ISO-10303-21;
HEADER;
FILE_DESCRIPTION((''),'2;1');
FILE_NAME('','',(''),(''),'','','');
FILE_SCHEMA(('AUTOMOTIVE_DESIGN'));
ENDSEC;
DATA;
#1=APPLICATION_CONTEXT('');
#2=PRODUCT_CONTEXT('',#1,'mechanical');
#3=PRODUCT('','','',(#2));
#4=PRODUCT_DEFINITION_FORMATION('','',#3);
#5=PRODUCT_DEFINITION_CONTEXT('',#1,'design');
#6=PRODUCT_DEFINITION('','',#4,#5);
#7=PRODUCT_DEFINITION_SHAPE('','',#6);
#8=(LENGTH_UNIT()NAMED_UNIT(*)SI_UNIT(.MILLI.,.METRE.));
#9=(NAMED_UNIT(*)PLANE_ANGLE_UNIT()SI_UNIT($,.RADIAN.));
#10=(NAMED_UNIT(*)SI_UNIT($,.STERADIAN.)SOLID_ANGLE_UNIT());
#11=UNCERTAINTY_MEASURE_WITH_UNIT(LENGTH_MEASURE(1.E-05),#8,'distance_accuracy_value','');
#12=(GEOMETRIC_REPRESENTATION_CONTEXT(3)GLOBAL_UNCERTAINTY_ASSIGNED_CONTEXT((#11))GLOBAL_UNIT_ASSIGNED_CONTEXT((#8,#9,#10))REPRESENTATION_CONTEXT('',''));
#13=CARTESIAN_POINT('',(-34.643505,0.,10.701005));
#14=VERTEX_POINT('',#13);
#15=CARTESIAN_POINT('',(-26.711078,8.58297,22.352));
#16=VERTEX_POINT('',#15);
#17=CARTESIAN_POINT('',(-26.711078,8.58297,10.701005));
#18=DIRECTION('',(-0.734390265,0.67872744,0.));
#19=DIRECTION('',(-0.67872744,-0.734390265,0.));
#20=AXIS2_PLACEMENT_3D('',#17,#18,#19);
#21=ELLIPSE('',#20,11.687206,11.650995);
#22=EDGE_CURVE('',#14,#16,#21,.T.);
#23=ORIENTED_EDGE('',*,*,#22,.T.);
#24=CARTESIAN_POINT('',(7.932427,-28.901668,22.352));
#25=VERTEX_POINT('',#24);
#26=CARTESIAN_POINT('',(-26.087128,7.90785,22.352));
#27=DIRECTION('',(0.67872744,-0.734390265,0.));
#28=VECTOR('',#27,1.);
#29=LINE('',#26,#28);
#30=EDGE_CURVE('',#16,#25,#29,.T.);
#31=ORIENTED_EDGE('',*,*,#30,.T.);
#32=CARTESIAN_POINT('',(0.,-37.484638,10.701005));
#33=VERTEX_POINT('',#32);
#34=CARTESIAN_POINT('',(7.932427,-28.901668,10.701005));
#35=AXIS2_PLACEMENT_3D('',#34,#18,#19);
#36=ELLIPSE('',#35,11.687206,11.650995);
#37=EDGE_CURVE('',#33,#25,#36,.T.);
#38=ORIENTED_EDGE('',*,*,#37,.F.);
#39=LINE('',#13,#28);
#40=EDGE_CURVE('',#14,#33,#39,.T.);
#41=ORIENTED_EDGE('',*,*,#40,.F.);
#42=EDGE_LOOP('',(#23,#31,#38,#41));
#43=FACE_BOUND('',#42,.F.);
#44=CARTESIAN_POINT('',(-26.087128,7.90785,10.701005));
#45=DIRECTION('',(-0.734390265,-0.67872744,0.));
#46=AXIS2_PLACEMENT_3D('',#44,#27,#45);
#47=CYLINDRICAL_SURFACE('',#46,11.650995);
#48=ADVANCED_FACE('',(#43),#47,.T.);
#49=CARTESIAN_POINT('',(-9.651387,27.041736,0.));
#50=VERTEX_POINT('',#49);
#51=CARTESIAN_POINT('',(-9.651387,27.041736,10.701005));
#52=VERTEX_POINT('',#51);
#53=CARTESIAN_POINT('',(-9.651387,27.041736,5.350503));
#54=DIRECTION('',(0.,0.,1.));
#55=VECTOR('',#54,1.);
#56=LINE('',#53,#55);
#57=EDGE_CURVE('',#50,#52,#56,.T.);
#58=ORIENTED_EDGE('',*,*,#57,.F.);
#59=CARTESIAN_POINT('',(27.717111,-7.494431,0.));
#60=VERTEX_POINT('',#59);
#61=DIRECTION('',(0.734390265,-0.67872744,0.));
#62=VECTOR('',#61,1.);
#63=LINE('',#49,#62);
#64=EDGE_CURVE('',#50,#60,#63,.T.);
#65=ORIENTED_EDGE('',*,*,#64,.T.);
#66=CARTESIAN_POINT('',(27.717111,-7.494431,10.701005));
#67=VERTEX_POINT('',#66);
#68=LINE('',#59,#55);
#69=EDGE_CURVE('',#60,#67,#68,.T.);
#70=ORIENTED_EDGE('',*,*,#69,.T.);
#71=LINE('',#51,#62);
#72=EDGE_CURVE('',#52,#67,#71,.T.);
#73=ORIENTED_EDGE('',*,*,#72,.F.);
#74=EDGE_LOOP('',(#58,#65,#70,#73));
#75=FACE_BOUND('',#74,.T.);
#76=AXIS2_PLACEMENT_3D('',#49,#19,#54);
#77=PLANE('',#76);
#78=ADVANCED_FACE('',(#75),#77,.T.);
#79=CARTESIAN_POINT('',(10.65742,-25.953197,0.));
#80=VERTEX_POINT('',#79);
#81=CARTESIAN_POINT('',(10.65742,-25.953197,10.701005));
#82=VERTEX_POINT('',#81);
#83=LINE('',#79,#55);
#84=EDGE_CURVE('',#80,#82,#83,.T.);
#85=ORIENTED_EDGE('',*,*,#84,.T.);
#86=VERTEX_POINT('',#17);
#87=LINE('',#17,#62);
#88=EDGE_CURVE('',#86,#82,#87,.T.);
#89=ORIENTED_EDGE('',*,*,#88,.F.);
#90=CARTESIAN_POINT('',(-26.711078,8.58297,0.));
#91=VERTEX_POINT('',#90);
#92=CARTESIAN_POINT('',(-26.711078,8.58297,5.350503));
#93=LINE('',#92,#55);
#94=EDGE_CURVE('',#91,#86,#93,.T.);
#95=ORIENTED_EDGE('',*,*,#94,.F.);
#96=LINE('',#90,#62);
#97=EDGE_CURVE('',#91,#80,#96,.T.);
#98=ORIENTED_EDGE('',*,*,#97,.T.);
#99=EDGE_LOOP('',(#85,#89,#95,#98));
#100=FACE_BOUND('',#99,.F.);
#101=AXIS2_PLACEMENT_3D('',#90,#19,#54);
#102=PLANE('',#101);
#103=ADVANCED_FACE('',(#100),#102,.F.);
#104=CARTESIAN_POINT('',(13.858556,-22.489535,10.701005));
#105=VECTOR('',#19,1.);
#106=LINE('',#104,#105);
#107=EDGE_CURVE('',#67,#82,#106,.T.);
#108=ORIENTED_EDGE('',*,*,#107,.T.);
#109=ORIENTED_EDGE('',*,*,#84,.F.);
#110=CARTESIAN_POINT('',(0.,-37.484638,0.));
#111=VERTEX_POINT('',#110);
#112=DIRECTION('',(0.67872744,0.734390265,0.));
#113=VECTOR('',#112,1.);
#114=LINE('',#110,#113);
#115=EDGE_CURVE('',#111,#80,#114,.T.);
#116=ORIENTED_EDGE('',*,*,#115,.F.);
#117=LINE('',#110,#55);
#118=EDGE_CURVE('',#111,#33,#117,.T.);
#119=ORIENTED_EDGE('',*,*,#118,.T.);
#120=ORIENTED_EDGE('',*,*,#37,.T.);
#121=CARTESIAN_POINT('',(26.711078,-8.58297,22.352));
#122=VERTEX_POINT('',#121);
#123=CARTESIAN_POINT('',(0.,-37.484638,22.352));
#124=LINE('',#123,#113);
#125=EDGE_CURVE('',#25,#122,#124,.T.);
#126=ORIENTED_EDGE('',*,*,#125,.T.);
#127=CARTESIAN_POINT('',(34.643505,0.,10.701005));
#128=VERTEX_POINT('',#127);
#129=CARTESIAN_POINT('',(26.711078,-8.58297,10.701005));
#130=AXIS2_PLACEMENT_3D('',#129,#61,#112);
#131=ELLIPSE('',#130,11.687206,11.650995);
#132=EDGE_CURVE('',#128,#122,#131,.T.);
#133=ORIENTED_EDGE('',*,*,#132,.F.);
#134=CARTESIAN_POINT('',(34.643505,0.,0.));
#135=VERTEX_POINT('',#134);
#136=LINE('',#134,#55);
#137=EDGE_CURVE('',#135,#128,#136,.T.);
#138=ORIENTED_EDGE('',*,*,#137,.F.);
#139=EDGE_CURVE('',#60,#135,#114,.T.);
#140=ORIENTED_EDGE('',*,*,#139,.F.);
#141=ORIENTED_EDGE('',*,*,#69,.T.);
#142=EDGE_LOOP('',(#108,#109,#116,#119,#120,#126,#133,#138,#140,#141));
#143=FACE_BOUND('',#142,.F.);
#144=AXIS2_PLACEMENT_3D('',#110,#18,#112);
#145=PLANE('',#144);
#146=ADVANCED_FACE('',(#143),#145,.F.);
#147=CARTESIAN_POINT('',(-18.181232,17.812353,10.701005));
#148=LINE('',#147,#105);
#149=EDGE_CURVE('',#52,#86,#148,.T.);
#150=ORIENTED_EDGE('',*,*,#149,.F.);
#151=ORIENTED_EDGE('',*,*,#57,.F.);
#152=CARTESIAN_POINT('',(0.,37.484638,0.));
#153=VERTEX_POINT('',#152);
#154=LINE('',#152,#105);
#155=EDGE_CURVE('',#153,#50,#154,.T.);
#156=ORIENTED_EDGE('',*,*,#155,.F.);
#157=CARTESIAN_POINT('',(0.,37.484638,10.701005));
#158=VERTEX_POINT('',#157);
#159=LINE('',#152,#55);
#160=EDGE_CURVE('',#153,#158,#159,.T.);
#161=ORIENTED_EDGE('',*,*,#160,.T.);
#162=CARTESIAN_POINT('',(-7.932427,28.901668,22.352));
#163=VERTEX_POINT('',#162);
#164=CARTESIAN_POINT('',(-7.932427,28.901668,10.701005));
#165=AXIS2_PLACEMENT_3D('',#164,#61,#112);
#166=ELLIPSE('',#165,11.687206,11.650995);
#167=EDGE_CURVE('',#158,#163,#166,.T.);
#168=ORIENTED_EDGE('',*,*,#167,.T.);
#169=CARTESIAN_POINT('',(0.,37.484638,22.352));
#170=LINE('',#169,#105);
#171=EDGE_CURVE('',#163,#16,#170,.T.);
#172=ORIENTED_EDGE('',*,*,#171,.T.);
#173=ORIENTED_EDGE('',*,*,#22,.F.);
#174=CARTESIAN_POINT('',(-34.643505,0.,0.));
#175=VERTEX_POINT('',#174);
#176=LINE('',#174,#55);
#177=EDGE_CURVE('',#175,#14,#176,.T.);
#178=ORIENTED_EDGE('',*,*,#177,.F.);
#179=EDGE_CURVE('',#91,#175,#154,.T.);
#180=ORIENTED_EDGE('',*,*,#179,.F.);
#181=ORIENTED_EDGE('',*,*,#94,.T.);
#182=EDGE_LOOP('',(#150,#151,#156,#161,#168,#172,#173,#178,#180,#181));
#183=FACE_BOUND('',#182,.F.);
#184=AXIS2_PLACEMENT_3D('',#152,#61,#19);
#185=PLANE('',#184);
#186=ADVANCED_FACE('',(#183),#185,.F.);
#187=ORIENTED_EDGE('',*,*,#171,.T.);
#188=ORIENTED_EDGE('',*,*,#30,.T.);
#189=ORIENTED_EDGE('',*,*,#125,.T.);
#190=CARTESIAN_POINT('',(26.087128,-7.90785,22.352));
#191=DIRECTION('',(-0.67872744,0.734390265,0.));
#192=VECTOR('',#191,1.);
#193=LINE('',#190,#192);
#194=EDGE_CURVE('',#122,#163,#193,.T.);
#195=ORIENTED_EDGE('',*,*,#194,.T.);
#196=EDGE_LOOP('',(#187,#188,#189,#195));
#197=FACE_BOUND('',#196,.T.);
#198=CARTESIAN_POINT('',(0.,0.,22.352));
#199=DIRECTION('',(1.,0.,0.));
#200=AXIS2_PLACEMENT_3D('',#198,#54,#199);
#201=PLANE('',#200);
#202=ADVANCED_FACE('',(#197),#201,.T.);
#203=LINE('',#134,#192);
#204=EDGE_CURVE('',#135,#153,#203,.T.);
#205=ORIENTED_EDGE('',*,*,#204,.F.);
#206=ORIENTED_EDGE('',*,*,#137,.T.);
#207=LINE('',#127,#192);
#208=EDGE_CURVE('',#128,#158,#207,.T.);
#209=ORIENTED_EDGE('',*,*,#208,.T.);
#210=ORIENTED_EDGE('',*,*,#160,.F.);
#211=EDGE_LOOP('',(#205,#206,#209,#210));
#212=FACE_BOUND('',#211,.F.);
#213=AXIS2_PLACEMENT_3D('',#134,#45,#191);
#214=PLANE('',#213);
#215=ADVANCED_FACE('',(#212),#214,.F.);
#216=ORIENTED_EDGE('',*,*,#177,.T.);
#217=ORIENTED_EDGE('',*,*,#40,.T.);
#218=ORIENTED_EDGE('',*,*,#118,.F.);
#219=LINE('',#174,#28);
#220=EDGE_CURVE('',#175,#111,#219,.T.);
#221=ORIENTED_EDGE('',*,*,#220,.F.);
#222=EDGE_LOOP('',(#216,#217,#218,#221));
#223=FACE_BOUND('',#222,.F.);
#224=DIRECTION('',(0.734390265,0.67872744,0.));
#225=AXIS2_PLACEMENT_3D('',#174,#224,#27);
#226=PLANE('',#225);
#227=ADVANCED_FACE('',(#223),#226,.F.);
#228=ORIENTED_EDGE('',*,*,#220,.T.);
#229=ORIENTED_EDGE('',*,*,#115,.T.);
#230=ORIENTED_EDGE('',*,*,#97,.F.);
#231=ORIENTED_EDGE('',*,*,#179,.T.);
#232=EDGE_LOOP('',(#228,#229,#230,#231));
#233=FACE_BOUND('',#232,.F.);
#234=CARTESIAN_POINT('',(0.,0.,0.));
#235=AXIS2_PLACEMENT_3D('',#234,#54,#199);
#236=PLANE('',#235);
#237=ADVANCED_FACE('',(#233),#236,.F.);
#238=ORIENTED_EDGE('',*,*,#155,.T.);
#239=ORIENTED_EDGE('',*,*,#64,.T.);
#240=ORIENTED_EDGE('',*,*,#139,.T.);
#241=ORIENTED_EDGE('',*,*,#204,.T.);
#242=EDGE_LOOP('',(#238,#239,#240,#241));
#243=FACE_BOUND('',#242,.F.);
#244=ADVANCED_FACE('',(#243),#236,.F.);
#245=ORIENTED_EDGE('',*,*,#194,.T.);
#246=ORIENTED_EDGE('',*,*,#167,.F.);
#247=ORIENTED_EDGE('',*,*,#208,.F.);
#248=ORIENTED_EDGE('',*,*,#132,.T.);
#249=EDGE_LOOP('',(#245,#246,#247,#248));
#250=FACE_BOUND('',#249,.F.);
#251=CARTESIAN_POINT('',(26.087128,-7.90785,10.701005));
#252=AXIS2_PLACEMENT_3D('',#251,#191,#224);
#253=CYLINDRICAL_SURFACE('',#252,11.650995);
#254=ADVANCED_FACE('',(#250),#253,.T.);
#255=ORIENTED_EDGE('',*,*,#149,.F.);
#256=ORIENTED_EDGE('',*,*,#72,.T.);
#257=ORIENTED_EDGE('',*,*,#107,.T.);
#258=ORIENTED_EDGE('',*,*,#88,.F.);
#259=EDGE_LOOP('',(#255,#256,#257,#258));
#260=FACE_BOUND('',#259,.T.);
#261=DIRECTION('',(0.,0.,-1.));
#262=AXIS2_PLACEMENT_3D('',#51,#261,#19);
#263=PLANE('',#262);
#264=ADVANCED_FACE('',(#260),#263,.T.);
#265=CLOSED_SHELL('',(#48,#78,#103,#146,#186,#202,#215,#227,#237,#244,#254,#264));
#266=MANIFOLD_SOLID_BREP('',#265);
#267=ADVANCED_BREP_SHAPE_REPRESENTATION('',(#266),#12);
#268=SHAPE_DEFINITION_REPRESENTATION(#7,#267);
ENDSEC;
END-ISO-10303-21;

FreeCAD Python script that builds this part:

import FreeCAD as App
import Part
import Sketcher
from FreeCAD import Vector
Q = App.Units.Quantity


def edges_at(feature, points):
    """Names of the edges that pass closest to the given points."""
    edges = feature.Shape.Edges
    near = lambda p: min(range(len(edges)), key=lambda i: edges[i].distToShape(Part.Vertex(*p))[0])
    return sorted({f"Edge{near(p) + 1}" for p in points})

doc = App.newDocument("Part")
body = doc.addObject("PartDesign::Body", "Body")

# Sketch on XY plane
sketch1 = doc.addObject("Sketcher::SketchObject", "Sketch")
body.addObject(sketch1)
sketch1.AttachmentSupport = (doc.XY_Plane, [""])
sketch1.MapMode = "FlatFace"
sketch1.addGeometry([
    Part.LineSegment(Vector(0, 37.484638, 0), Vector(-34.643505, 0, 0)),
    Part.LineSegment(Vector(-34.643505, 0, 0), Vector(0, -37.484638, 0)),
    Part.LineSegment(Vector(0, -37.484638, 0), Vector(34.643505, 0, 0)),
    Part.LineSegment(Vector(34.643505, 0, 0), Vector(0, 37.484638, 0)),
], False)
sketch1.addConstraint([
    Sketcher.Constraint("Coincident", 0, 2, 1, 1),
    Sketcher.Constraint("Coincident", 1, 2, 2, 1),
    Sketcher.Constraint("Coincident", 2, 2, 3, 1),
    Sketcher.Constraint("Coincident", 3, 2, 0, 1),
    Sketcher.Constraint("Symmetric", 0, 2, 2, 2, -1, 1),
    Sketcher.Constraint("Symmetric", 1, 2, 3, 2, -1, 1),
    Sketcher.Constraint("PointOnObject", 0, 2, -1),
    Sketcher.Constraint("PointOnObject", 1, 2, -2),
    Sketcher.Constraint("Distance", 0, Q("51.041851 mm")),
    Sketcher.Constraint("DistanceY", 1, 2, -1, 1, Q("37.484638 mm")),
])
pad1 = doc.addObject("PartDesign::Pad", "Pad")
body.addObject(pad1)
pad1.Profile = sketch1
pad1.Length = Q("0.88 in")
doc.recompute()

fillet = doc.addObject("PartDesign::Fillet", "Fillet")
body.addObject(fillet)
fillet.Base = (pad1, edges_at(pad1, [(-17.322, -18.742, 22.352), (17.322, 18.742, 22.352)]))
fillet.Radius = 11.650995

# Sketch on an angled plane
sketch2 = doc.addObject("Sketcher::SketchObject", "Sketch001")
body.addObject(sketch2)
sketch2.Placement = App.Placement(Vector(-18.684249, 17.268084, 0), App.Rotation(Vector(-0.67872744, -0.734390265, 0), Vector(0, 0, 0.999999999), Vector(-0.734390265, 0.67872744, 0), "ZXY"))
sketch2.addGeometry([
    Part.LineSegment(Vector(-13.308527, 10.701005, 0), Vector(-13.308527, 0, 0)),
    Part.LineSegment(Vector(-13.308527, 0, 0), Vector(11.826292, 0, 0)),
    Part.LineSegment(Vector(11.826292, 0, 0), Vector(11.826292, 10.701005, 0)),
    Part.LineSegment(Vector(11.826292, 10.701005, 0), Vector(-13.308527, 10.701005, 0)),
], False)
sketch2.addConstraint([
    Sketcher.Constraint("Coincident", 0, 2, 1, 1),
    Sketcher.Constraint("Coincident", 1, 2, 2, 1),
    Sketcher.Constraint("Coincident", 2, 2, 3, 1),
    Sketcher.Constraint("Coincident", 3, 2, 0, 1),
    Sketcher.Constraint("Vertical", 0),
    Sketcher.Constraint("Horizontal", 1),
    Sketcher.Constraint("Vertical", 2),
    Sketcher.Constraint("Horizontal", 3),
    Sketcher.Constraint("PointOnObject", 0, 2, -1),
    Sketcher.Constraint("DistanceX", 1, 1, 1, 2, Q("25.134819 mm")),
    Sketcher.Constraint("DistanceY", 0, 2, 0, 1, Q("10.701005 mm")),
    Sketcher.Constraint("DistanceX", -1, 1, 1, 2, Q("11.826292 mm")),
])
pocket1 = doc.addObject("PartDesign::Pocket", "Pocket")
body.addObject(pocket1)
pocket1.Profile = sketch2
pocket1.Type = "ThroughAll"

doc.recompute()
